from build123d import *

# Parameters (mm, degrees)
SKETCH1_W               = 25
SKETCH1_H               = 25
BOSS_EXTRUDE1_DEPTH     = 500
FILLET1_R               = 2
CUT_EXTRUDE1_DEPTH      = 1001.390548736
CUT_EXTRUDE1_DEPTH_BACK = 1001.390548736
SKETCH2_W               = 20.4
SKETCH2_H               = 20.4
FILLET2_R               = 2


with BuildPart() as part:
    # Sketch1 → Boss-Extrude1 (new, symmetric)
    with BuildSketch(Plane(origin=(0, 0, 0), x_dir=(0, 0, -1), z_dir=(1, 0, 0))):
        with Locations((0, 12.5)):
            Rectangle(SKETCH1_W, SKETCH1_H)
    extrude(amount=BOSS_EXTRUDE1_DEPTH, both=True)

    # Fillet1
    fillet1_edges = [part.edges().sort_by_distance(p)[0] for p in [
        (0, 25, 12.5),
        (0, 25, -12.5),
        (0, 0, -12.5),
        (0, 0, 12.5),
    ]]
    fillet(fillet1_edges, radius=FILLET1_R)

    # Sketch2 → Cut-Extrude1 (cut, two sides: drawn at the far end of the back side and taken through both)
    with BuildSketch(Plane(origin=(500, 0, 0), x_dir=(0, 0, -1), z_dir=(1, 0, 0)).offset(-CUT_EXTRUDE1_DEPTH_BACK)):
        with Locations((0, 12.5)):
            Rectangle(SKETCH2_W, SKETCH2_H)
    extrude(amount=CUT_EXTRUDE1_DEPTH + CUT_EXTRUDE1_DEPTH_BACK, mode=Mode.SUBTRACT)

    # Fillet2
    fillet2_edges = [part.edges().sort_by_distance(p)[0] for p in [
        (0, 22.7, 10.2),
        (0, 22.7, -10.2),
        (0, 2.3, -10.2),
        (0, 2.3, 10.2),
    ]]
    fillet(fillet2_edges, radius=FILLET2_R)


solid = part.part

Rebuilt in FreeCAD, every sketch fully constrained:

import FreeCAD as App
import Part
import Sketcher
from FreeCAD import Vector


def edges_at(feature, points):
    """Names of the edges that pass closest to the given points."""
    edges = feature.Shape.Edges
    near = lambda p: min(range(len(edges)), key=lambda i: edges[i].distToShape(Part.Vertex(*p))[0])
    return sorted({f"Edge{near(p) + 1}" for p in points})


def add_polygon(sketch, points):
    """Adds a closed chain of lines whose ends are joined by coincident constraints."""
    first, n = sketch.GeometryCount, len(points)
    for a, b in zip(points, points[1:] + points[:1]):
        sketch.addGeometry(Part.LineSegment(App.Vector(*a, 0), App.Vector(*b, 0)), False)
    for i in range(n):
        sketch.addConstraint(Sketcher.Constraint("Coincident", first + i, 2, first + (i + 1) % n, 1))

doc = App.newDocument("Part")
body = doc.addObject("PartDesign::Body", "Body")

sketch1 = body.newObject("Sketcher::SketchObject", "Sketch")
sketch1.AttachmentSupport = (doc.getObject("YZ_Plane"), [""])
sketch1.MapMode = "FlatFace"
add_polygon(sketch1, [(25, 12), (0, 12), (0, -12), (25, -12)])
sketch1.addConstraint(Sketcher.Constraint("Horizontal", 0))
sketch1.addConstraint(Sketcher.Constraint("Vertical", 1))
sketch1.addConstraint(Sketcher.Constraint("Horizontal", 2))
sketch1.addConstraint(Sketcher.Constraint("Vertical", 3))
sketch1.addConstraint(Sketcher.Constraint("Symmetric", 0, 2, 1, 2, -1, 1))
sketch1.addConstraint(Sketcher.Constraint("Equal", 2, 1))
sketch1.addConstraint(Sketcher.Constraint("DistanceX", 0, 2, 0, 1, 25.0))
pad1 = body.newObject("PartDesign::Pad", "Pad")
pad1.Profile = sketch1
pad1.Length = 1000
pad1.Midplane = True
doc.recompute()

fillet = body.newObject("PartDesign::Fillet", "Fillet")
fillet.Base = (pad1, edges_at(pad1, [
    (0, 25, 12.5),
    (0, 25, -12.5),
    (0, 0, -12.5),
    (0, 0, 12.5),
]))
fillet.Radius = 2

sketch2 = body.newObject("Sketcher::SketchObject", "Sketch001")
sketch2.AttachmentSupport = (doc.getObject("YZ_Plane"), [""])
sketch2.MapMode = "FlatFace"
sketch2.AttachmentOffset = App.Placement(Vector(0, 0, 500), App.Rotation())
add_polygon(sketch2, [(23, 10), (2, 10), (2, -10), (23, -10)])
sketch2.addConstraint(Sketcher.Constraint("Horizontal", 0))
sketch2.addConstraint(Sketcher.Constraint("Vertical", 1))
sketch2.addConstraint(Sketcher.Constraint("Horizontal", 2))
sketch2.addConstraint(Sketcher.Constraint("Vertical", 3))
sketch2.addConstraint(Sketcher.Constraint("Equal", 2, 1))
sketch2.addConstraint(Sketcher.Constraint("DistanceX", 0, 2, 0, 1, 20.4))
sketch2.addConstraint(Sketcher.Constraint("DistanceX", -1, 1, 0, 2, 2.3))
sketch2.addConstraint(Sketcher.Constraint("DistanceY", -1, 1, 0, 2, 10.2))
pocket1 = body.newObject("PartDesign::Pocket", "Pocket")
pocket1.Profile = sketch2
pocket1.Type = "ThroughAll"
pocket1.Midplane = True
doc.recompute()

fillet2 = body.newObject("PartDesign::Fillet", "Fillet001")
fillet2.Base = (pocket1, edges_at(pocket1, [
    (0, 22.7, 10.2),
    (0, 22.7, -10.2),
    (0, 2.3, -10.2),
    (0, 2.3, 10.2),
]))
fillet2.Radius = 2

doc.recompute()
